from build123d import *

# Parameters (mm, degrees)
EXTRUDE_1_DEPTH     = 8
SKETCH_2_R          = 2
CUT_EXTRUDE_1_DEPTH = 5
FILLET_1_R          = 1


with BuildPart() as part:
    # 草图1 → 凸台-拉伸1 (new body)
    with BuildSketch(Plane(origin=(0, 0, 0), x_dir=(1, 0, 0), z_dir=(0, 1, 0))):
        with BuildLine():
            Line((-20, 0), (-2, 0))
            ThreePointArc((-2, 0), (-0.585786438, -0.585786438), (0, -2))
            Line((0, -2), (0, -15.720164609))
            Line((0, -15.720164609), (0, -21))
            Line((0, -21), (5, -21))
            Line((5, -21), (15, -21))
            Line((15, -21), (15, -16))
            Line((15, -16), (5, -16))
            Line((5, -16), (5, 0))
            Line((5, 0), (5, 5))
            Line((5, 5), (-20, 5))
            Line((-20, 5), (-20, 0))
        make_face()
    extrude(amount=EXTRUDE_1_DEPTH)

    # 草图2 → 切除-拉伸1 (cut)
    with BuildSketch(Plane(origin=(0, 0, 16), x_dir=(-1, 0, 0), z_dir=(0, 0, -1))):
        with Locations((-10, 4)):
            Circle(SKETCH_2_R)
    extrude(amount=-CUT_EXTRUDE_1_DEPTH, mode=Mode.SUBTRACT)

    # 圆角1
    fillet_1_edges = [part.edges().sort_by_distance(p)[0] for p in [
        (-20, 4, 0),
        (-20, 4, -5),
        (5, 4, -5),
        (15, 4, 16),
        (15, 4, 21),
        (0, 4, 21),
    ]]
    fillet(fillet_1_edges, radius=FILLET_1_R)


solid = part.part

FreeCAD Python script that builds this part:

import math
import FreeCAD as App
import Part
import Sketcher

V = App.Vector
Q = App.Units.Quantity


def edges_at(feature, points):
    """Names of the edges that pass closest to the given points."""
    edges = feature.Shape.Edges
    near = lambda p: min(range(len(edges)), key=lambda i: edges[i].distToShape(Part.Vertex(*p))[0])
    return sorted({f"Edge{near(p) + 1}" for p in points})

doc = App.newDocument("Part")
body = doc.addObject("PartDesign::Body", "Body")

# Sketch on XZ plane
sketch1 = body.newObject("Sketcher::SketchObject", "Sketch")
sketch1.AttachmentSupport = (doc.getObject("XZ_Plane"), [""])
sketch1.MapMode = "FlatFace"
sketch1.addGeometry(Part.LineSegment(V(-20, 0, 0), V(-2, 0, 0)), False)
sketch1.addGeometry(Part.ArcOfCircle(Part.Circle(V(-2, 2, 0), V(0, 0, 1), 2), math.radians(-90), math.radians(0)), False)
sketch1.addGeometry(Part.LineSegment(V(0, 2, 0), V(0, 21, 0)), False)
sketch1.addGeometry(Part.LineSegment(V(0, 21, 0), V(15, 21, 0)), False)
sketch1.addGeometry(Part.LineSegment(V(15, 21, 0), V(15, 16, 0)), False)
sketch1.addGeometry(Part.LineSegment(V(15, 16, 0), V(5, 16, 0)), False)
sketch1.addGeometry(Part.LineSegment(V(5, 16, 0), V(5, -5, 0)), False)
sketch1.addGeometry(Part.LineSegment(V(5, -5, 0), V(-20, -5, 0)), False)
sketch1.addGeometry(Part.LineSegment(V(-20, -5, 0), V(-20, 0, 0)), False)
sketch1.addConstraint(Sketcher.Constraint("Tangent", 0, 2, 1, 1))
sketch1.addConstraint(Sketcher.Constraint("Tangent", 1, 2, 2, 1))
sketch1.addConstraint(Sketcher.Constraint("Coincident", 2, 2, 3, 1))
sketch1.addConstraint(Sketcher.Constraint("Coincident", 3, 2, 4, 1))
sketch1.addConstraint(Sketcher.Constraint("Coincident", 4, 2, 5, 1))
sketch1.addConstraint(Sketcher.Constraint("Coincident", 5, 2, 6, 1))
sketch1.addConstraint(Sketcher.Constraint("Coincident", 6, 2, 7, 1))
sketch1.addConstraint(Sketcher.Constraint("Coincident", 7, 2, 8, 1))
sketch1.addConstraint(Sketcher.Constraint("Coincident", 8, 2, 0, 1))
sketch1.addConstraint(Sketcher.Constraint("Horizontal", 0))
sketch1.addConstraint(Sketcher.Constraint("Vertical", 2))
sketch1.addConstraint(Sketcher.Constraint("Horizontal", 3))
sketch1.addConstraint(Sketcher.Constraint("Vertical", 4))
sketch1.addConstraint(Sketcher.Constraint("Horizontal", 5))
sketch1.addConstraint(Sketcher.Constraint("Vertical", 6))
sketch1.addConstraint(Sketcher.Constraint("Horizontal", 7))
sketch1.addConstraint(Sketcher.Constraint("Vertical", 8))
sketch1.addConstraint(Sketcher.Constraint("PointOnObject", 0, 2, -1))
sketch1.addConstraint(Sketcher.Constraint("PointOnObject", 1, 2, -2))
sketch1.addConstraint(Sketcher.Constraint("Equal", 4, 8))
sketch1.addConstraint(Sketcher.Constraint("Radius", 1, Q("2 mm")))
sketch1.addConstraint(Sketcher.Constraint("DistanceX", 0, 1, 0, 2, Q("18 mm")))
sketch1.addConstraint(Sketcher.Constraint("DistanceX", 3, 1, 3, 2, Q("15 mm")))
sketch1.addConstraint(Sketcher.Constraint("DistanceX", 5, 2, 5, 1, Q("10 mm")))
sketch1.addConstraint(Sketcher.Constraint("DistanceY", 2, 1, 2, 2, Q("19 mm")))
sketch1.addConstraint(Sketcher.Constraint("DistanceY", 4, 2, 4, 1, Q("5 mm")))
pad1 = body.newObject("PartDesign::Pad", "Pad")
pad1.Profile = sketch1
pad1.Length = 8
pad1.Reversed = True

# Sketch on XY plane
sketch2 = body.newObject("Sketcher::SketchObject", "Sketch001")
sketch2.AttachmentSupport = (doc.getObject("XY_Plane"), [""])
sketch2.MapMode = "FlatFace"
sketch2.AttachmentOffset = App.Placement(V(0, 0, 16), App.Rotation())
sketch2.addGeometry(Part.Circle(V(10, 4, 0), V(0, 0, 1), 2), False)
sketch2.addConstraint(Sketcher.Constraint("Diameter", 0, Q("4 mm")))
sketch2.addConstraint(Sketcher.Constraint("DistanceX", -1, 1, 0, 3, Q("10 mm")))
sketch2.addConstraint(Sketcher.Constraint("DistanceY", -1, 1, 0, 3, Q("4 mm")))
pocket1 = body.newObject("PartDesign::Pocket", "Pocket")
pocket1.Profile = sketch2
pocket1.Length = 5
pocket1.Reversed = True
doc.recompute()

fillet = body.newObject("PartDesign::Fillet", "Fillet")
fillet.Base = (pocket1, edges_at(pocket1, [
    (-20, 4, 0),
    (-20, 4, -5),
    (5, 4, -5),
    (15, 4, 16),
    (15, 4, 21),
    (0, 4, 21),
]))
fillet.Radius = 1

doc.recompute()
